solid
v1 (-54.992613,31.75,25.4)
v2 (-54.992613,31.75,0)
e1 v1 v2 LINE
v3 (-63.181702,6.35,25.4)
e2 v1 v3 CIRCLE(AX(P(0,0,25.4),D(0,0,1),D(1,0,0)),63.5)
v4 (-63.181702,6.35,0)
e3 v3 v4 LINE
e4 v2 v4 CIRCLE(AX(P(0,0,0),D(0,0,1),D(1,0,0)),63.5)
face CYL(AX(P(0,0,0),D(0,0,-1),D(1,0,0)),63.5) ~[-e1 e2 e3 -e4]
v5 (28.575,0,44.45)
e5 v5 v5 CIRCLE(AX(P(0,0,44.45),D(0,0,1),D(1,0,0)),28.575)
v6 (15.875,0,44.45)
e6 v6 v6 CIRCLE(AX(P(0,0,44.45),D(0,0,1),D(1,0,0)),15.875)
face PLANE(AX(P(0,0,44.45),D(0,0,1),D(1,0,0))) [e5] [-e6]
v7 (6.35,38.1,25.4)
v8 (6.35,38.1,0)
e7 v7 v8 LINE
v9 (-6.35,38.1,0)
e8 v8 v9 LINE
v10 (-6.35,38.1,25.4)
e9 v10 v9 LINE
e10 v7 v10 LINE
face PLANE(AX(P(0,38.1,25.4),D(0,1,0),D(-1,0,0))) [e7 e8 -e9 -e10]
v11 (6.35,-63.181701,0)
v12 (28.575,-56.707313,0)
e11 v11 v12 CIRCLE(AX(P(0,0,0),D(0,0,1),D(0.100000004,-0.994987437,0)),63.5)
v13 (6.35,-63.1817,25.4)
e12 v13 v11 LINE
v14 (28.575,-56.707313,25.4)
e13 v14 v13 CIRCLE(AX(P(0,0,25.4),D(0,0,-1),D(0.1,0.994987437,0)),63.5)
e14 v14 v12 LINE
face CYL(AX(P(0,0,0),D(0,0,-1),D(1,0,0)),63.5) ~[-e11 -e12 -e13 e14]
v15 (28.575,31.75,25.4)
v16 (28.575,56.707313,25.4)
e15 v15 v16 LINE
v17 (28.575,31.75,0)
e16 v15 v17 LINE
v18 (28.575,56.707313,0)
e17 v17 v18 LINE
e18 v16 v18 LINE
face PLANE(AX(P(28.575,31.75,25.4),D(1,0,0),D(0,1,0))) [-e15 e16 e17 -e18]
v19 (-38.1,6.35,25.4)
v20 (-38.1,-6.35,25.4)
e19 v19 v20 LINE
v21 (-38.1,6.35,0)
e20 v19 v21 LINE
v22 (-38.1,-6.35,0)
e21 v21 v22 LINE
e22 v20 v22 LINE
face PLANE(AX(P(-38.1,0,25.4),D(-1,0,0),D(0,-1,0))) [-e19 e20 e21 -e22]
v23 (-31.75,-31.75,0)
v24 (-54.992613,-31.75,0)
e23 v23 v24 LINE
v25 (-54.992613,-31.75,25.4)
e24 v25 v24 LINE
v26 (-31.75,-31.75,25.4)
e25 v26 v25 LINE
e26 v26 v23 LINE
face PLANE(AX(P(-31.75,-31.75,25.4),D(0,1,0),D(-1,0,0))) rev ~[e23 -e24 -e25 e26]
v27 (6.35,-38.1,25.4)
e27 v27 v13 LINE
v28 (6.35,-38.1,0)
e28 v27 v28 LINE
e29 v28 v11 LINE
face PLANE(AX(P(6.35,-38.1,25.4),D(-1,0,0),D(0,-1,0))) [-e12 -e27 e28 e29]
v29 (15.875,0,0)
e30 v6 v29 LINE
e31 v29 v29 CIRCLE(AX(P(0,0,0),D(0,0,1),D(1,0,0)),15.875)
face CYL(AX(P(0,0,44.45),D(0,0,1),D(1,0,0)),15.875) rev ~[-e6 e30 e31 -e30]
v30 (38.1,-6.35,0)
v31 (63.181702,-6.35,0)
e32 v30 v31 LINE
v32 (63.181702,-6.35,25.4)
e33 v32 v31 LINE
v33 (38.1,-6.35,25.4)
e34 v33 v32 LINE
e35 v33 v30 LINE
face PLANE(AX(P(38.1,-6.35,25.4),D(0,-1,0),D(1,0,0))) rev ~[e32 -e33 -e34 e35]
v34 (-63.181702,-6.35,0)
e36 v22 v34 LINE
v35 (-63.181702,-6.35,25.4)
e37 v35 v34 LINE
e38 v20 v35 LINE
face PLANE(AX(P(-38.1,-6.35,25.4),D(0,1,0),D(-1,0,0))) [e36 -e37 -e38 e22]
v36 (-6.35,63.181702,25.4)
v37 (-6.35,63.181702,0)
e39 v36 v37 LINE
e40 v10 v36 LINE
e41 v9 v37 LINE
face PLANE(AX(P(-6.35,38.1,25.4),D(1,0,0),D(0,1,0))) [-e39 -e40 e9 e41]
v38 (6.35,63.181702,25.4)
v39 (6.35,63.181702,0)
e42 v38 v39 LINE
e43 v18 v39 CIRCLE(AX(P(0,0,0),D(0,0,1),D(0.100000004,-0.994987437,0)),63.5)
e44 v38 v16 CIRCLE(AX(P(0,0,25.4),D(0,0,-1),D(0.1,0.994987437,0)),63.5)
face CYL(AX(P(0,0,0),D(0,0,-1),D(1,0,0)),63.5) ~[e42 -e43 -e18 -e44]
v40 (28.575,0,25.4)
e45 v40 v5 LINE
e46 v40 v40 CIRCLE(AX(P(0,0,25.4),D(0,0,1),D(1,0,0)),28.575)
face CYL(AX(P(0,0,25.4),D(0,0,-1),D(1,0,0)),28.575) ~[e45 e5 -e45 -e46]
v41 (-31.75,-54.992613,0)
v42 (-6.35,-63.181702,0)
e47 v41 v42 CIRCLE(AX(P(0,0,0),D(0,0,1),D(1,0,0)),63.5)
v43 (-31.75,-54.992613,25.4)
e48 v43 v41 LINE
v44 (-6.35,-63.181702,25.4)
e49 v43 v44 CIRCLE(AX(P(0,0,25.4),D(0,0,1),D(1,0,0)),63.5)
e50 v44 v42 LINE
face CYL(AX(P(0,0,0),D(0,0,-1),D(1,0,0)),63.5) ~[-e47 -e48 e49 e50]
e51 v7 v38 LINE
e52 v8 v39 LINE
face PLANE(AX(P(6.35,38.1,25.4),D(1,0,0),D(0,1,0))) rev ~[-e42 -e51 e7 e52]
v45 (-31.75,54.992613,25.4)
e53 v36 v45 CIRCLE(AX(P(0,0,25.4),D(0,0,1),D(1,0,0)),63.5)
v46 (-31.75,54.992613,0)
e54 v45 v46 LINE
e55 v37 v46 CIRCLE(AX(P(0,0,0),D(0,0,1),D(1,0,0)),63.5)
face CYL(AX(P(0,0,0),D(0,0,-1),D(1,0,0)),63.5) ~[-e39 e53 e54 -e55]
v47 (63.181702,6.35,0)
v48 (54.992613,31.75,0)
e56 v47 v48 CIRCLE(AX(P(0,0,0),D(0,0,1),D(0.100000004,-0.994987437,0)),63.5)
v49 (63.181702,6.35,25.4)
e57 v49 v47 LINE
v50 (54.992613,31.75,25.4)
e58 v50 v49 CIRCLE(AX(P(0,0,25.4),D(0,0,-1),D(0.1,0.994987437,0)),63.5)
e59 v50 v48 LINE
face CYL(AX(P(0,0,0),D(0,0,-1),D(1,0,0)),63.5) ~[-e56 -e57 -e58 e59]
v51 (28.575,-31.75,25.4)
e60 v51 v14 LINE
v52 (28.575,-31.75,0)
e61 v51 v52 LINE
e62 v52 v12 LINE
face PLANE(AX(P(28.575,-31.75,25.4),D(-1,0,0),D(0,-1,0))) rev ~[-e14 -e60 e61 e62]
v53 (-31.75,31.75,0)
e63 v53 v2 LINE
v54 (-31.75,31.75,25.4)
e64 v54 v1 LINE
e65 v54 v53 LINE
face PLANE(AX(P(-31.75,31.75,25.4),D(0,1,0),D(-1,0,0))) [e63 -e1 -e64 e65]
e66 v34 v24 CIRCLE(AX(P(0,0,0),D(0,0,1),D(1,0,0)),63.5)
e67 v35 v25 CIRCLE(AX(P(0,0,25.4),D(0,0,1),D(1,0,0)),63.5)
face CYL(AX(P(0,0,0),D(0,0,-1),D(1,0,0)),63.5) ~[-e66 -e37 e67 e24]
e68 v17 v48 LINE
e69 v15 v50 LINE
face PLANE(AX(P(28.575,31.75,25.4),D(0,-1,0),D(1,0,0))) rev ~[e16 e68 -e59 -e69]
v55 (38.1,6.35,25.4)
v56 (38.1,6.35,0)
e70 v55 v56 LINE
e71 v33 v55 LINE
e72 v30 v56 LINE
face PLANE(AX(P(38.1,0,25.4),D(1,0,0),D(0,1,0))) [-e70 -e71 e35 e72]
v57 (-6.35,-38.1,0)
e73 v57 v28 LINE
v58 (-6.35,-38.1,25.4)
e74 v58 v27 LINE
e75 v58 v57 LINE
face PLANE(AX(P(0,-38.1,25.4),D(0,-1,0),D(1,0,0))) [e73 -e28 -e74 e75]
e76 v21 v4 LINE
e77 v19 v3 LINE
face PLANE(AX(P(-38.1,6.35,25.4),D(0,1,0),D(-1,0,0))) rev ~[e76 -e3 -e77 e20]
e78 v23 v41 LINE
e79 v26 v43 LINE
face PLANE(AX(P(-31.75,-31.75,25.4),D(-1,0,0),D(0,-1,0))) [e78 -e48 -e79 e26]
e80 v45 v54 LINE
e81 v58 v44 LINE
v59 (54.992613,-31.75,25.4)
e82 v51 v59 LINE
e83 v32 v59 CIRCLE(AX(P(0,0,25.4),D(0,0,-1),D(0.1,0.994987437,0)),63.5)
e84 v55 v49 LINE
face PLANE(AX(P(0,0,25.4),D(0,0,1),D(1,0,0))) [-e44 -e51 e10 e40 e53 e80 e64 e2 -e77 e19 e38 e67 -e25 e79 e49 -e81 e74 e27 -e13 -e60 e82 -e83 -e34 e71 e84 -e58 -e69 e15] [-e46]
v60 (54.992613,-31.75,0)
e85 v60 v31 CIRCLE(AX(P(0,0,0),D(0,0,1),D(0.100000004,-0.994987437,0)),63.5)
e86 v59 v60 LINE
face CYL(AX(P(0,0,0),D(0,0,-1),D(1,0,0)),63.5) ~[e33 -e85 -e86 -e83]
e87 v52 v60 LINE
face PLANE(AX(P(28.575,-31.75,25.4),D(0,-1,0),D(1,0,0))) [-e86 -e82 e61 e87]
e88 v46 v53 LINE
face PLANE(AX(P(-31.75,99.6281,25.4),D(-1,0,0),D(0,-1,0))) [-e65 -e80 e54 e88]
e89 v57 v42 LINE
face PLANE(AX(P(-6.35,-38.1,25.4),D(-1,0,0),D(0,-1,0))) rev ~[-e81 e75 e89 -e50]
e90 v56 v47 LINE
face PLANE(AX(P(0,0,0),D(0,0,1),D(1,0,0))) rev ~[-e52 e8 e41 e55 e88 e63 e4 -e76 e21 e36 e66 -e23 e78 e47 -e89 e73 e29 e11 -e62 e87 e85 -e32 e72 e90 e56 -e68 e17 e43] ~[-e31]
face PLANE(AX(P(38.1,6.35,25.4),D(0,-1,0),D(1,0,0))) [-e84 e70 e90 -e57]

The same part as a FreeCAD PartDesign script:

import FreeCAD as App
import Part
import Sketcher
from FreeCAD import Vector
Q = App.Units.Quantity


def add_polygon(sketch, points):
    """Adds a closed chain of lines whose ends are joined by coincident constraints."""
    first, n = sketch.GeometryCount, len(points)
    for a, b in zip(points, points[1:] + points[:1]):
        sketch.addGeometry(Part.LineSegment(App.Vector(*a, 0), App.Vector(*b, 0)), False)
    for i in range(n):
        sketch.addConstraint(Sketcher.Constraint("Coincident", first + i, 2, first + (i + 1) % n, 1))

doc = App.newDocument("Part")
params = doc.addObject("Spreadsheet::Sheet", "Params")
for row, (alias, value) in enumerate([
    ("sketch1_diameter", "5 in"),
    ("pad1_length", "1 in"),
    ("sketch2_diameter", "2.25 in"),
    ("pad2_length", "0.75 in"),
    ("sketch3_diameter", "1.25 in"),
    ("sketch6_height", "3 in"),
], start=1):
    params.set(f"A{row}", alias)
    params.set(f"B{row}", "=" + value)
    params.setAlias(f"B{row}", alias)

body = doc.addObject("PartDesign::Body", "Body")

# Sketch on XY plane
sketch1 = doc.addObject("Sketcher::SketchObject", "Sketch")
body.addObject(sketch1)
sketch1.AttachmentSupport = (doc.XY_Plane, [""])
sketch1.MapMode = "FlatFace"
sketch1.addGeometry(Part.Circle(Vector(0, 0, 0), Vector(0, 0, 1), 64), False)
sketch1.addConstraint([
    Sketcher.Constraint("Coincident", 0, 3, -1, 1),
    Sketcher.Constraint("Diameter", 0, Q("5 in")),
])
sketch1.setExpression("Constraints[1]", "Params.sketch1_diameter")
pad1 = doc.addObject("PartDesign::Pad", "Pad")
body.addObject(pad1)
pad1.Profile = sketch1
pad1.setExpression("Length", "Params.pad1_length")

# Sketch on XY plane
sketch2 = doc.addObject("Sketcher::SketchObject", "Sketch001")
body.addObject(sketch2)
sketch2.AttachmentSupport = (doc.XY_Plane, [""])
sketch2.MapMode = "FlatFace"
sketch2.AttachmentOffset = App.Placement(Vector(0, 0, 1 * 25.4), App.Rotation())
sketch2.addGeometry(Part.Circle(Vector(0, 0, 0), Vector(0, 0, 1), 29), False)
sketch2.addConstraint([
    Sketcher.Constraint("Coincident", 0, 3, -1, 1),
    Sketcher.Constraint("Diameter", 0, Q("2.25 in")),
])
sketch2.setExpression("Constraints[1]", "Params.sketch2_diameter")
pad2 = doc.addObject("PartDesign::Pad", "Pad001")
body.addObject(pad2)
pad2.Profile = sketch2
pad2.setExpression("Length", "Params.pad2_length")

# Sketch on XY plane
sketch3 = doc.addObject("Sketcher::SketchObject", "Sketch002")
body.addObject(sketch3)
sketch3.AttachmentSupport = (doc.XY_Plane, [""])
sketch3.MapMode = "FlatFace"
sketch3.AttachmentOffset = App.Placement(Vector(0, 0, 1.75 * 25.4), App.Rotation())
sketch3.addGeometry(Part.Circle(Vector(0, 0, 0), Vector(0, 0, 1), 16), False)
sketch3.addConstraint([
    Sketcher.Constraint("Coincident", 0, 3, -1, 1),
    Sketcher.Constraint("Diameter", 0, Q("1.25 in")),
])
sketch3.setExpression("Constraints[1]", "Params.sketch3_diameter")
pocket1 = doc.addObject("PartDesign::Pocket", "Pocket")
body.addObject(pocket1)
pocket1.Profile = sketch3
pocket1.Type = "ThroughAll"

# Sketch on XY plane
sketch4 = doc.addObject("Sketcher::SketchObject", "Sketch003")
body.addObject(sketch4)
sketch4.AttachmentSupport = (doc.XY_Plane, [""])
sketch4.MapMode = "FlatFace"
sketch4.AttachmentOffset = App.Placement(Vector(0, 0, 1 * 25.4), App.Rotation())
add_polygon(sketch4, [(-6, 38), (6, 38), (6, 69), (-6, 69)])  # lines 0-3
add_polygon(sketch4, [(6, -38), (-6, -38), (-6, -81), (6, -63)])  # lines 4-7
sketch4.addConstraint([
    Sketcher.Constraint("Horizontal", 0),
    Sketcher.Constraint("Vertical", 1),
    Sketcher.Constraint("Horizontal", 2),
    Sketcher.Constraint("Vertical", 3),
    Sketcher.Constraint("Horizontal", 4),
    Sketcher.Constraint("Vertical", 5),
    Sketcher.Constraint("Vertical", 7),
    Sketcher.Constraint("Symmetric", 0, 2, 4, 2, -1, 1),
    Sketcher.Constraint("Vertical", 3, 2, 4, 2),
    Sketcher.Constraint("Vertical", 1, 2, 6, 2),
    Sketcher.Constraint("DistanceY", 4, 2, 3, 2, Q("3 in")),
    Sketcher.Constraint("DistanceX", -1, 1, 0, 2, Q("0.25 in")),
    Sketcher.Constraint("Angle", 6, Q("54.401 deg")),
    Sketcher.Constraint("DistanceY", 5, 2, 5, 1, Q("1.6859 in")),
    Sketcher.Constraint("DistanceY", 1, 1, 1, 2, Q("30.4855 mm")),
])
pocket2 = doc.addObject("PartDesign::Pocket", "Pocket001")
body.addObject(pocket2)
pocket2.Profile = sketch4
pocket2.Type = "ThroughAll"

# Sketch on XY plane
sketch5 = doc.addObject("Sketcher::SketchObject", "Sketch004")
body.addObject(sketch5)
sketch5.AttachmentSupport = (doc.XY_Plane, [""])
sketch5.MapMode = "FlatFace"
sketch5.AttachmentOffset = App.Placement(Vector(0, 0, 1 * 25.4), App.Rotation())
add_polygon(sketch5, [(38, 6), (38, -6), (92, -6), (95, 6)])  # lines 0-3
add_polygon(sketch5, [(-38, -6), (-38, 6), (-99, 6), (-95, -6)])  # lines 4-7
sketch5.addConstraint([
    Sketcher.Constraint("Vertical", 0),
    Sketcher.Constraint("Horizontal", 1),
    Sketcher.Constraint("Horizontal", 3),
    Sketcher.Constraint("Vertical", 4),
    Sketcher.Constraint("Horizontal", 5),
    Sketcher.Constraint("Horizontal", 7),
    Sketcher.Constraint("Symmetric", 0, 2, 4, 2, -1, 1),
    Sketcher.Constraint("Horizontal", 3, 2, 4, 2),
    Sketcher.Constraint("Horizontal", 1, 2, 6, 2),
    Sketcher.Constraint("DistanceX", 4, 2, 3, 2, Q("3 in")),
    Sketcher.Constraint("DistanceY", 0, 2, -1, 1, Q("0.25 in")),
    Sketcher.Constraint("Angle", 6, Q("-74.1404 deg")),
    Sketcher.Constraint("DistanceX", 5, 2, 5, 1, Q("2.4008 in")),
    Sketcher.Constraint("Distance", 2, Q("0.5118 in")),
    Sketcher.Constraint("DistanceX", 1, 1, 1, 2, Q("54.3195 mm")),
])
pocket3 = doc.addObject("PartDesign::Pocket", "Pocket002")
body.addObject(pocket3)
pocket3.Profile = sketch5
pocket3.Type = "ThroughAll"

# Sketch on XY plane
sketch6 = doc.addObject("Sketcher::SketchObject", "Sketch005")
body.addObject(sketch6)
sketch6.AttachmentSupport = (doc.XY_Plane, [""])
sketch6.MapMode = "FlatFace"
sketch6.AttachmentOffset = App.Placement(Vector(0, 0, 1 * 25.4), App.Rotation())
add_polygon(sketch6, [(-127, 32), (-32, 32), (-32, 100)])  # lines 0-2
add_polygon(sketch6, [(29, 108), (29, 32), (125, 32)])  # lines 3-5
add_polygon(sketch6, [(128, -32), (29, -32), (29, -121)])  # lines 6-8
add_polygon(sketch6, [(-32, -121), (-32, -32), (-135, -32)])  # lines 9-11
sketch6.addConstraint([
    Sketcher.Constraint("Horizontal", 0),
    Sketcher.Constraint("Vertical", 1),
    Sketcher.Constraint("Vertical", 3),
    Sketcher.Constraint("Horizontal", 4),
    Sketcher.Constraint("Horizontal", 6),
    Sketcher.Constraint("Vertical", 7),
    Sketcher.Constraint("Vertical", 9),
    Sketcher.Constraint("Horizontal", 10),
    Sketcher.Constraint("Symmetric", 3, 2, 6, 2, -1),
    Sketcher.Constraint("Symmetric", 0, 2, 9, 2, -1),
    Sketcher.Constraint("Horizontal", 2, 2, 3, 2),
    Sketcher.Constraint("Horizontal", 7, 2, 11, 2),
    Sketcher.Constraint("DistanceY", 3, 2, 3, 1, Q("3 in")),
    Sketcher.Constraint("DistanceX", 0, 2, -1, 1, Q("1.25 in")),
    Sketcher.Constraint("DistanceY", -1, 1, 0, 2, Q("1.25 in")),
    Sketcher.Constraint("DistanceX", 0, 1, 0, 2, Q("3.7421 in")),
    Sketcher.Constraint("DistanceX", 6, 2, 6, 1, Q("3.9234 in")),
    Sketcher.Constraint("DistanceX", -1, 1, 3, 2, Q("1.125 in")),
    Sketcher.Constraint("Distance", 8, Q("5.2752 in")),
    Sketcher.Constraint("DistanceX", 4, 1, 4, 2, Q("96.3177 mm")),
    Sketcher.Constraint("DistanceX", 10, 2, 10, 1, Q("103.1532 mm")),
    Sketcher.Constraint("DistanceY", 1, 1, 1, 2, Q("67.878 mm")),
])
sketch6.setExpression("Constraints[24]", "Params.sketch6_height")
pocket4 = doc.addObject("PartDesign::Pocket", "Pocket003")
body.addObject(pocket4)
pocket4.Profile = sketch6
pocket4.Type = "ThroughAll"

doc.recompute()
